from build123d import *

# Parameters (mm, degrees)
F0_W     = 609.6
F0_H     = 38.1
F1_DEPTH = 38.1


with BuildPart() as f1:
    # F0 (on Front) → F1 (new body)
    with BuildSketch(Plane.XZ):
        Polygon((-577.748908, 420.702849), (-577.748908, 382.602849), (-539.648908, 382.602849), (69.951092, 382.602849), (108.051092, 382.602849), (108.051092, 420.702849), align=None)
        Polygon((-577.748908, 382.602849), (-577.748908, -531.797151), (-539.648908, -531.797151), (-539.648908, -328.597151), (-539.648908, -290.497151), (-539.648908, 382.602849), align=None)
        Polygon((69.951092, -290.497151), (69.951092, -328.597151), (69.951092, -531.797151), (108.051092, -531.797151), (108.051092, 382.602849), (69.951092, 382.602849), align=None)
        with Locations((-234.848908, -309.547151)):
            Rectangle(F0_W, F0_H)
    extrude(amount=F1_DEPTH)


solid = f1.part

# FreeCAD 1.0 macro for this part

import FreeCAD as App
import Part
import Sketcher
from FreeCAD import Vector
Q = App.Units.Quantity

doc = App.newDocument("Part")
params = doc.addObject("Spreadsheet::Sheet", "Params")
for row, (alias, value) in enumerate([
    ("sketch1_width", "24 in"),
    ("sketch1_width2", "27 in"),
    ("sketch1_height", "8 in"),
    ("sketch1_height2", "37.5 in"),
    ("sketch1_height3", "26.5 in"),
    ("pad1_length", "1.5 in"),
], start=1):
    params.set(f"A{row}", alias)
    params.set(f"B{row}", "=" + value)
    params.setAlias(f"B{row}", alias)

body = doc.addObject("PartDesign::Body", "Body")

sketch1 = body.newObject("Sketcher::SketchObject", "Sketch")
sketch1.AttachmentSupport = (doc.getObject("XZ_Plane"), [""])
sketch1.MapMode = "FlatFace"
sketch1.addGeometry([
    Part.LineSegment(Vector(-578, 421, 0), Vector(-578, -532, 0)),
    Part.LineSegment(Vector(-578, -532, 0), Vector(-540, -532, 0)),
    Part.LineSegment(Vector(-540, -532, 0), Vector(-540, -329, 0)),
    Part.LineSegment(Vector(-540, -329, 0), Vector(70, -329, 0)),
    Part.LineSegment(Vector(70, -329, 0), Vector(70, -532, 0)),
    Part.LineSegment(Vector(70, -532, 0), Vector(108, -532, 0)),
    Part.LineSegment(Vector(108, -532, 0), Vector(108, 421, 0)),
    Part.LineSegment(Vector(108, 421, 0), Vector(-578, 421, 0)),
    Part.LineSegment(Vector(-540, -290, 0), Vector(-540, 383, 0)),
    Part.LineSegment(Vector(-540, 383, 0), Vector(70, 383, 0)),
    Part.LineSegment(Vector(70, 383, 0), Vector(70, -290, 0)),
    Part.LineSegment(Vector(70, -290, 0), Vector(-540, -290, 0)),
], False)
sketch1.addConstraint([
    Sketcher.Constraint("Coincident", 0, 2, 1, 1),
    Sketcher.Constraint("Coincident", 1, 2, 2, 1),
    Sketcher.Constraint("Coincident", 2, 2, 3, 1),
    Sketcher.Constraint("Coincident", 3, 2, 4, 1),
    Sketcher.Constraint("Coincident", 4, 2, 5, 1),
    Sketcher.Constraint("Coincident", 5, 2, 6, 1),
    Sketcher.Constraint("Coincident", 6, 2, 7, 1),
    Sketcher.Constraint("Coincident", 7, 2, 0, 1),
    Sketcher.Constraint("Coincident", 8, 2, 9, 1),
    Sketcher.Constraint("Coincident", 9, 2, 10, 1),
    Sketcher.Constraint("Coincident", 10, 2, 11, 1),
    Sketcher.Constraint("Coincident", 11, 2, 8, 1),
    Sketcher.Constraint("Vertical", 0),
    Sketcher.Constraint("Horizontal", 1),
    Sketcher.Constraint("Vertical", 2),
    Sketcher.Constraint("Horizontal", 3),
    Sketcher.Constraint("Vertical", 4),
    Sketcher.Constraint("Horizontal", 5),
    Sketcher.Constraint("Vertical", 6),
    Sketcher.Constraint("Horizontal", 7),
    Sketcher.Constraint("Vertical", 8),
    Sketcher.Constraint("Horizontal", 9),
    Sketcher.Constraint("Vertical", 10),
    Sketcher.Constraint("Horizontal", 11),
    Sketcher.Constraint("Horizontal", 1, 2, 4, 2),
    Sketcher.Constraint("Vertical", 2, 2, 8, 2),
    Sketcher.Constraint("Vertical", 4, 2, 9, 2),
    Sketcher.Constraint("Equal", 1, 5),
    Sketcher.Constraint("DistanceX", 3, 1, 3, 2, Q("24 in")),
    Sketcher.Constraint("DistanceX", 7, 2, 7, 1, Q("27 in")),
    Sketcher.Constraint("DistanceY", 2, 1, 2, 2, Q("8 in")),
    Sketcher.Constraint("DistanceY", 0, 2, 0, 1, Q("37.5 in")),
    Sketcher.Constraint("DistanceY", 8, 1, 8, 2, Q("26.5 in")),
    Sketcher.Constraint("DistanceY", 2, 2, 8, 2, Q("28 in")),
    Sketcher.Constraint("DistanceX", 0, 2, -1, 1, Q("577.748908 mm")),
    Sketcher.Constraint("DistanceY", 0, 2, -1, 1, Q("531.797151 mm")),
])
sketch1.setExpression("Constraints[28]", "Params.sketch1_width")
sketch1.setExpression("Constraints[29]", "Params.sketch1_width2")
sketch1.setExpression("Constraints[30]", "Params.sketch1_height")
sketch1.setExpression("Constraints[31]", "Params.sketch1_height2")
sketch1.setExpression("Constraints[32]", "Params.sketch1_height3")
pad1 = body.newObject("PartDesign::Pad", "Pad")
pad1.Profile = sketch1
pad1.setExpression("Length", "Params.pad1_length")

doc.recompute()
